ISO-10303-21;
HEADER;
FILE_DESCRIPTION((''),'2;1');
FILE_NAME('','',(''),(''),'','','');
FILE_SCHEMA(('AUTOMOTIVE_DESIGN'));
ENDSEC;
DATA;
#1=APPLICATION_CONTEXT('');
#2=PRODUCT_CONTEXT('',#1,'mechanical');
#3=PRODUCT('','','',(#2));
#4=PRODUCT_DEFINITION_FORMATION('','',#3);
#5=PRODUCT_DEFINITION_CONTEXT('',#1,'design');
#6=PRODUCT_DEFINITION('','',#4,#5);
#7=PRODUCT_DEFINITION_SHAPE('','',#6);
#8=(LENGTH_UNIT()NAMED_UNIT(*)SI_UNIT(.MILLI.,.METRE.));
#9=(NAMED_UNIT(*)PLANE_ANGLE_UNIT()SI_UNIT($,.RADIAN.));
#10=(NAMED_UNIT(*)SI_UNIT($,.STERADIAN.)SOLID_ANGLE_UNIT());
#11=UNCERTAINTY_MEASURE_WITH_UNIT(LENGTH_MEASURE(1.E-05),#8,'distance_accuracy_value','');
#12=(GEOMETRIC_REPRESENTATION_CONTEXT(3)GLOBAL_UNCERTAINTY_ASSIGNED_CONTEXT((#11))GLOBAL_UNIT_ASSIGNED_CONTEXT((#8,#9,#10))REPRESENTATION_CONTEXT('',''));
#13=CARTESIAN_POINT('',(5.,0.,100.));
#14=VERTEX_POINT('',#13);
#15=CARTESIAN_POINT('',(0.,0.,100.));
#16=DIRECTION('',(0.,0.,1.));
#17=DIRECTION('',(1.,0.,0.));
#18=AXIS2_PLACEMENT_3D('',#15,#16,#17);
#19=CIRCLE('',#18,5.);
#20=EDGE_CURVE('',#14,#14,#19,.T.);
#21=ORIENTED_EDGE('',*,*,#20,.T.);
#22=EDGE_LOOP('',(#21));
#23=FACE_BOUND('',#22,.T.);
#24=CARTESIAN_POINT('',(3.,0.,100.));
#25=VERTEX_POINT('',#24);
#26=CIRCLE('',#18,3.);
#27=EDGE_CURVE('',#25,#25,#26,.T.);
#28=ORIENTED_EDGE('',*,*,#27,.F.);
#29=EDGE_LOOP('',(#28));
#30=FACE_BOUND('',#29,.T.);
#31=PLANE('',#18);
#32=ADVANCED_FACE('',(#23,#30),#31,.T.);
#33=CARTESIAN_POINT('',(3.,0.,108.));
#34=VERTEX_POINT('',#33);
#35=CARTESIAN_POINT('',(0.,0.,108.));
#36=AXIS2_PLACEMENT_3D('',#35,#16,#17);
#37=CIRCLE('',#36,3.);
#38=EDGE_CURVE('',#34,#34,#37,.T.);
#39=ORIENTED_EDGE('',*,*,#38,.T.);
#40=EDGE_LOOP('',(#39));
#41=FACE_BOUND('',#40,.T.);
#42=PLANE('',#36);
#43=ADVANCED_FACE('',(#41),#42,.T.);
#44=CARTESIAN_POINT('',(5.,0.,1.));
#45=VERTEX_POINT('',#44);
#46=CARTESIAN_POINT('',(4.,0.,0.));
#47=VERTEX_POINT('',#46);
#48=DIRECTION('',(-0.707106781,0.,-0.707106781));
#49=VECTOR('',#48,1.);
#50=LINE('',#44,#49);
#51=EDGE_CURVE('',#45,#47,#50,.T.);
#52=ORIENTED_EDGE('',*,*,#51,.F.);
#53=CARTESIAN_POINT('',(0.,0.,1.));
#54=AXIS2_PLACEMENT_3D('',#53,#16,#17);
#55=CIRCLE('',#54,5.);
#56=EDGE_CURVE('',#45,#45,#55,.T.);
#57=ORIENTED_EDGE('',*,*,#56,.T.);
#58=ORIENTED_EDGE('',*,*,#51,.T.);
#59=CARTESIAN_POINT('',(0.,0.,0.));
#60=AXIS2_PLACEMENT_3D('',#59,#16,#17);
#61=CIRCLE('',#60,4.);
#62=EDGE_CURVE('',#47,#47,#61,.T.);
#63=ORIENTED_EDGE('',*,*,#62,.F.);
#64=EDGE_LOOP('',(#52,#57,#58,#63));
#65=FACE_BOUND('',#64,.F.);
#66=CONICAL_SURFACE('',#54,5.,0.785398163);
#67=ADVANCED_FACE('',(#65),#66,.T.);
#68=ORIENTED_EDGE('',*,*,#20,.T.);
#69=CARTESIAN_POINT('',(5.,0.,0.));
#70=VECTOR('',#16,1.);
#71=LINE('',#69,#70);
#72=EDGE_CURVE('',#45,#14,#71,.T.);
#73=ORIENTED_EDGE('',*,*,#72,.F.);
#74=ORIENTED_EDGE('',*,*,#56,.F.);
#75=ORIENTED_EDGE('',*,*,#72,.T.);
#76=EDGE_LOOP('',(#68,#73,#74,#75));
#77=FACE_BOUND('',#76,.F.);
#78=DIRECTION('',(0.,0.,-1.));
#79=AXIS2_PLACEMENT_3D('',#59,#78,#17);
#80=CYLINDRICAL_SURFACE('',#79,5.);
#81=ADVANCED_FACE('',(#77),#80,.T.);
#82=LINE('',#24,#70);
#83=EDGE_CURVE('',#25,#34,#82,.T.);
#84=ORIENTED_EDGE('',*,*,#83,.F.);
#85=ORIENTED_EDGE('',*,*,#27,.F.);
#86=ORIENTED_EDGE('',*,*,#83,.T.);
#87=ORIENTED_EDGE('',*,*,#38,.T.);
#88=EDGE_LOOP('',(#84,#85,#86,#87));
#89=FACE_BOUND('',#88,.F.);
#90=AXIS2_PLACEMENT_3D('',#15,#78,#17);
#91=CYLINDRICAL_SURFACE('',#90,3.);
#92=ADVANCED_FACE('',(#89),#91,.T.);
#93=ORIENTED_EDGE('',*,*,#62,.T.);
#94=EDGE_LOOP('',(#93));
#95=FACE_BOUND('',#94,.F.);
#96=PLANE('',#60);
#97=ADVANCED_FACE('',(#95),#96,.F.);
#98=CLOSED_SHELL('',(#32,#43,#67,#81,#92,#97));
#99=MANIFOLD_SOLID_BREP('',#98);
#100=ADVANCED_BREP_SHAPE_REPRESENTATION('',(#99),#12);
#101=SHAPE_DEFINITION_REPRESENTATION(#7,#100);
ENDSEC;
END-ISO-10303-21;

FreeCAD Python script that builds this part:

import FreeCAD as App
import Part
import Sketcher
from FreeCAD import Vector
Q = App.Units.Quantity


def edges_at(feature, points):
    """Names of the edges that pass closest to the given points."""
    edges = feature.Shape.Edges
    near = lambda p: min(range(len(edges)), key=lambda i: edges[i].distToShape(Part.Vertex(*p))[0])
    return sorted({f"Edge{near(p) + 1}" for p in points})

doc = App.newDocument("Part")
params = doc.addObject("Spreadsheet::Sheet", "Params")
for row, (alias, value) in enumerate([
    ("sketch1_diameter", "10 mm"),
    ("pad1_length", "100 mm"),
    ("sketch2_diameter", "6 mm"),
    ("pad2_length", "8 mm"),
    ("chamfer_size", "1 mm"),
], start=1):
    params.set(f"A{row}", alias)
    params.set(f"B{row}", "=" + value)
    params.setAlias(f"B{row}", alias)

body = doc.addObject("PartDesign::Body", "Body")

sketch1 = doc.addObject("Sketcher::SketchObject", "Sketch")
body.addObject(sketch1)
sketch1.AttachmentSupport = (doc.XY_Plane, [""])
sketch1.MapMode = "FlatFace"
sketch1.addGeometry(Part.Circle(Vector(0, 0, 0), Vector(0, 0, 1), 5), False)
sketch1.addConstraint([
    Sketcher.Constraint("Coincident", 0, 3, -1, 1),
    Sketcher.Constraint("Diameter", 0, Q("10 mm")),
])
sketch1.setExpression("Constraints[1]", "Params.sketch1_diameter")
pad1 = doc.addObject("PartDesign::Pad", "Pad")
body.addObject(pad1)
pad1.Profile = sketch1
pad1.setExpression("Length", "Params.pad1_length")

sketch2 = doc.addObject("Sketcher::SketchObject", "Sketch001")
body.addObject(sketch2)
sketch2.AttachmentSupport = (doc.XY_Plane, [""])
sketch2.MapMode = "FlatFace"
sketch2.AttachmentOffset = App.Placement(Vector(0, 0, 100), App.Rotation())
sketch2.addGeometry(Part.Circle(Vector(0, 0, 0), Vector(0, 0, 1), 3), False)
sketch2.addConstraint([
    Sketcher.Constraint("Coincident", 0, 3, -1, 1),
    Sketcher.Constraint("Diameter", 0, Q("6 mm")),
])
sketch2.setExpression("Constraints[1]", "Params.sketch2_diameter")
pad2 = doc.addObject("PartDesign::Pad", "Pad001")
body.addObject(pad2)
pad2.Profile = sketch2
pad2.setExpression("Length", "Params.pad2_length")
doc.recompute()

chamfer = doc.addObject("PartDesign::Chamfer", "Chamfer")
body.addObject(chamfer)
chamfer.Base = (pad2, edges_at(pad2, [(-5, 0, 0)]))
chamfer.setExpression("Size", "Params.chamfer_size")

doc.recompute()
